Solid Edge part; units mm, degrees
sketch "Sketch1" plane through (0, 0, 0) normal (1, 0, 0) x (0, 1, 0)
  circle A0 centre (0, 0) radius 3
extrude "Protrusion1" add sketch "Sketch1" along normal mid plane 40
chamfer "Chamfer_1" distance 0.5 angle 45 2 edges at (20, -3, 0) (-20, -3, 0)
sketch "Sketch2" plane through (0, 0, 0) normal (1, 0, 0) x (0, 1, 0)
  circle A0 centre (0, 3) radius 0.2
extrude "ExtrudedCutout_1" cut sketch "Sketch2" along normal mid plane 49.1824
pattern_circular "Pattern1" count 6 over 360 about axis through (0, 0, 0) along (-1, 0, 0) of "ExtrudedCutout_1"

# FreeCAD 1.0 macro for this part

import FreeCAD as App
import Part
import Sketcher


def edges_at(feature, points):
    """Names of the edges that pass closest to the given points."""
    edges = feature.Shape.Edges
    near = lambda p: min(range(len(edges)), key=lambda i: edges[i].distToShape(Part.Vertex(*p))[0])
    return sorted({f"Edge{near(p) + 1}" for p in points})

doc = App.newDocument("Part")
body = doc.addObject("PartDesign::Body", "Body")

sketch1 = body.newObject("Sketcher::SketchObject", "Sketch")
sketch1.AttachmentSupport = (doc.getObject("YZ_Plane"), [""])
sketch1.MapMode = "FlatFace"
sketch1.addGeometry(Part.Circle(App.Vector(0, 0, 0), App.Vector(0, 0, 1), 3), False)
sketch1.addConstraint(Sketcher.Constraint("Coincident", 0, 3, -1, 1))
sketch1.addConstraint(Sketcher.Constraint("Diameter", 0, 6.0))
pad1 = body.newObject("PartDesign::Pad", "Pad")
pad1.Profile = sketch1
pad1.Length = 40
pad1.Midplane = True
doc.recompute()

chamfer = body.newObject("PartDesign::Chamfer", "Chamfer")
chamfer.Base = (pad1, edges_at(pad1, [(20, -3, 0), (-20, -3, 0)]))
chamfer.Size = 0.5

sketch2 = body.newObject("Sketcher::SketchObject", "Sketch001")
sketch2.AttachmentSupport = (doc.getObject("YZ_Plane"), [""])
sketch2.MapMode = "FlatFace"
sketch2.addGeometry(Part.Circle(App.Vector(0, 3, 0), App.Vector(0, 0, 1), 0.2), False)
sketch2.addConstraint(Sketcher.Constraint("PointOnObject", 0, 3, -2))
sketch2.addConstraint(Sketcher.Constraint("Diameter", 0, 0.4))
sketch2.addConstraint(Sketcher.Constraint("DistanceY", -1, 1, 0, 3, 3.0))
pocket1 = body.newObject("PartDesign::Pocket", "Pocket")
pocket1.Profile = sketch2
pocket1.Length = 49.1824
pocket1.Midplane = True
doc.recompute()

polarpattern = body.newObject("PartDesign::PolarPattern", "PolarPattern")
polarpattern.Originals = [pocket1]
polarpattern.Axis = (doc.getObject("X_Axis"), [""])
polarpattern.Angle = 360
polarpattern.Occurrences = 6
body.Tip = polarpattern

doc.recompute()
